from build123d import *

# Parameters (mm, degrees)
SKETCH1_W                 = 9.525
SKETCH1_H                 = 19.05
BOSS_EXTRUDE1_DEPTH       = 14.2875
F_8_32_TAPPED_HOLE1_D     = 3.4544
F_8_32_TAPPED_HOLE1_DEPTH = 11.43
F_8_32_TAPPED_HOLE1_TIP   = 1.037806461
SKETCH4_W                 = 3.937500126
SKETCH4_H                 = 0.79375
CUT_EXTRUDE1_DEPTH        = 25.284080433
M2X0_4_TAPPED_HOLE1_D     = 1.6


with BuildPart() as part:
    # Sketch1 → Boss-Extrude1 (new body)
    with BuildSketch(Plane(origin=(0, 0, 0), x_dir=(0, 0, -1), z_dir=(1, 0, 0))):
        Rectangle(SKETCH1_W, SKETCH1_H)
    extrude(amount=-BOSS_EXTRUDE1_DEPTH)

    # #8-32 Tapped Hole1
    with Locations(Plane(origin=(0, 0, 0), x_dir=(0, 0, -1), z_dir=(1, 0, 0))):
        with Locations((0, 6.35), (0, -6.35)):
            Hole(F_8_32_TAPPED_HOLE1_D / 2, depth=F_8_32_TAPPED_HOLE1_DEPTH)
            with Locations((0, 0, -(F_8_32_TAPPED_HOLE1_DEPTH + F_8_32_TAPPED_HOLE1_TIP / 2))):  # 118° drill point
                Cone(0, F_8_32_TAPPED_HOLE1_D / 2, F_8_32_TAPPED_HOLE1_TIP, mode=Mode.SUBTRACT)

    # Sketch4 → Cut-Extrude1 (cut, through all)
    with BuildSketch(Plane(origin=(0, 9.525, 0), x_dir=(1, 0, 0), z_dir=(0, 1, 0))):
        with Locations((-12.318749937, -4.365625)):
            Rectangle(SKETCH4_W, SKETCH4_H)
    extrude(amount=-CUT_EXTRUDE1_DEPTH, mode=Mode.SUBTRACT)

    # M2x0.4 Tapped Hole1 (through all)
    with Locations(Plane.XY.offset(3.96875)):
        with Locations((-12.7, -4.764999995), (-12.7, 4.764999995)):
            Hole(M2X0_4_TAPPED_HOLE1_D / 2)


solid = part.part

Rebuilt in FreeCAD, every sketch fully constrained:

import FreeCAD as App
import Part
import Sketcher
Q = App.Units.Quantity

doc = App.newDocument("Part")
params = doc.addObject("Spreadsheet::Sheet", "Params")
for row, (alias, value) in enumerate([
    ("sketch1_width", "0.75 in"),
    ("sketch1_height", "0.375 in"),
    ("pad1_length", "0.5625 in"),
    ("sketch2_diameter", "0.136 in"),
    ("hole_diameter", "0.136 in"),
    ("hole_depth", "0.45 in"),
    ("sketch3_height", "0.03125 in"),
    ("hole2_diameter", "1.6 mm"),
], start=1):
    params.set(f"A{row}", alias)
    params.set(f"B{row}", "=" + value)
    params.setAlias(f"B{row}", alias)

body = doc.addObject("PartDesign::Body", "Body")

# Sketch on YZ plane
sketch1 = body.newObject("Sketcher::SketchObject", "Sketch")
sketch1.AttachmentSupport = (doc.getObject("YZ_Plane"), [""])
sketch1.MapMode = "FlatFace"
sketch1.addGeometry(Part.LineSegment(App.Vector(10, 5, 0), App.Vector(-10, 5, 0)), False)
sketch1.addGeometry(Part.LineSegment(App.Vector(-10, 5, 0), App.Vector(-10, -5, 0)), False)
sketch1.addGeometry(Part.LineSegment(App.Vector(-10, -5, 0), App.Vector(10, -5, 0)), False)
sketch1.addGeometry(Part.LineSegment(App.Vector(10, -5, 0), App.Vector(10, 5, 0)), False)
sketch1.addConstraint(Sketcher.Constraint("Coincident", 0, 2, 1, 1))
sketch1.addConstraint(Sketcher.Constraint("Coincident", 1, 2, 2, 1))
sketch1.addConstraint(Sketcher.Constraint("Coincident", 2, 2, 3, 1))
sketch1.addConstraint(Sketcher.Constraint("Coincident", 3, 2, 0, 1))
sketch1.addConstraint(Sketcher.Constraint("Horizontal", 0))
sketch1.addConstraint(Sketcher.Constraint("Vertical", 1))
sketch1.addConstraint(Sketcher.Constraint("Horizontal", 2))
sketch1.addConstraint(Sketcher.Constraint("Vertical", 3))
sketch1.addConstraint(Sketcher.Constraint("Symmetric", 0, 2, 2, 2, -1, 1))
sketch1.addConstraint(Sketcher.Constraint("DistanceX", 0, 2, 0, 1, Q("0.75 in")))
sketch1.addConstraint(Sketcher.Constraint("DistanceY", 1, 2, 1, 1, Q("0.375 in")))
sketch1.setExpression("Constraints[9]", "Params.sketch1_width")
sketch1.setExpression("Constraints[10]", "Params.sketch1_height")
pad1 = body.newObject("PartDesign::Pad", "Pad")
pad1.Profile = sketch1
pad1.setExpression("Length", "Params.pad1_length")
pad1.Reversed = True

# Sketch on YZ plane
sketch2 = body.newObject("Sketcher::SketchObject", "Sketch001")
sketch2.AttachmentSupport = (doc.getObject("YZ_Plane"), [""])
sketch2.MapMode = "FlatFace"
sketch2.addGeometry(Part.Circle(App.Vector(6.3, 0, 0), App.Vector(0, 0, 1), 1.7), False)
sketch2.addGeometry(Part.Circle(App.Vector(-6.3, 0, 0), App.Vector(0, 0, 1), 1.7), False)
sketch2.addConstraint(Sketcher.Constraint("Equal", 0, 1))
sketch2.addConstraint(Sketcher.Constraint("Symmetric", 0, 3, 1, 3, -1, 1))
sketch2.addConstraint(Sketcher.Constraint("PointOnObject", 0, 3, -1))
sketch2.addConstraint(Sketcher.Constraint("Diameter", 0, Q("0.136 in")))
sketch2.addConstraint(Sketcher.Constraint("DistanceX", 1, 3, 0, 3, Q("0.5 in")))
sketch2.setExpression("Constraints[3]", "Params.sketch2_diameter")
doc.recompute()
hole = body.newObject("PartDesign::Hole", "Hole")
hole.Profile = sketch2
hole.ThreadType = "None"
hole.setExpression("Diameter", "Params.hole_diameter")
hole.DepthType = "Dimension"
hole.setExpression("Depth", "Params.hole_depth")
hole.DrillPoint = "Angled"
hole.DrillPointAngle = 118

# Sketch on XZ plane
sketch3 = body.newObject("Sketcher::SketchObject", "Sketch002")
sketch3.AttachmentSupport = (doc.getObject("XZ_Plane"), [""])
sketch3.MapMode = "FlatFace"
sketch3.AttachmentOffset = App.Placement(App.Vector(0, 0, -0.375 * 25.4), App.Rotation())
sketch3.addGeometry(Part.LineSegment(App.Vector(-14.3, 4, 0), App.Vector(-14.3, 4.8, 0)), False)
sketch3.addGeometry(Part.LineSegment(App.Vector(-14.3, 4.8, 0), App.Vector(-10.3, 4.8, 0)), False)
sketch3.addGeometry(Part.LineSegment(App.Vector(-10.3, 4.8, 0), App.Vector(-10.3, 4, 0)), False)
sketch3.addGeometry(Part.LineSegment(App.Vector(-10.3, 4, 0), App.Vector(-14.3, 4, 0)), False)
sketch3.addConstraint(Sketcher.Constraint("Coincident", 0, 2, 1, 1))
sketch3.addConstraint(Sketcher.Constraint("Coincident", 1, 2, 2, 1))
sketch3.addConstraint(Sketcher.Constraint("Coincident", 2, 2, 3, 1))
sketch3.addConstraint(Sketcher.Constraint("Coincident", 3, 2, 0, 1))
sketch3.addConstraint(Sketcher.Constraint("Vertical", 0))
sketch3.addConstraint(Sketcher.Constraint("Horizontal", 1))
sketch3.addConstraint(Sketcher.Constraint("Vertical", 2))
sketch3.addConstraint(Sketcher.Constraint("Horizontal", 3))
sketch3.addConstraint(Sketcher.Constraint("DistanceY", 0, 1, 0, 2, Q("0.03125 in")))
sketch3.addConstraint(Sketcher.Constraint("DistanceX", 0, 2, -1, 1, Q("0.5625 in")))
sketch3.addConstraint(Sketcher.Constraint("DistanceY", -1, 1, 0, 2, Q("0.1875 in")))
sketch3.addConstraint(Sketcher.Constraint("DistanceX", 1, 1, 1, 2, 3.9375))
sketch3.setExpression("Constraints[8]", "Params.sketch3_height")
pocket1 = body.newObject("PartDesign::Pocket", "Pocket")
pocket1.Profile = sketch3
pocket1.Type = "ThroughAll"
pocket1.Reversed = True

# Sketch on XY plane
sketch4 = body.newObject("Sketcher::SketchObject", "Sketch003")
sketch4.AttachmentSupport = (doc.getObject("XY_Plane"), [""])
sketch4.MapMode = "FlatFace"
sketch4.AttachmentOffset = App.Placement(App.Vector(0, 0, 0.15625 * 25.4), App.Rotation())
sketch4.addGeometry(Part.Circle(App.Vector(-12.7, -4.8, 0), App.Vector(0, 0, 1), 0.8), False)
sketch4.addGeometry(Part.Circle(App.Vector(-12.7, 4.8, 0), App.Vector(0, 0, 1), 0.8), False)
sketch4.addConstraint(Sketcher.Constraint("Equal", 0, 1))
sketch4.addConstraint(Sketcher.Constraint("Symmetric", 0, 3, 1, 3, -1))
sketch4.addConstraint(Sketcher.Constraint("DistanceX", 0, 3, -1, 1, Q("0.5 in")))
sketch4.addConstraint(Sketcher.Constraint("Diameter", 0, 1.6))
sketch4.addConstraint(Sketcher.Constraint("DistanceY", 0, 3, -1, 1, 4.765))
doc.recompute()
hole2 = body.newObject("PartDesign::Hole", "Hole001")
hole2.Profile = sketch4
hole2.ThreadType = "None"
hole2.setExpression("Diameter", "Params.hole2_diameter")
hole2.DepthType = "ThroughAll"

doc.recompute()
